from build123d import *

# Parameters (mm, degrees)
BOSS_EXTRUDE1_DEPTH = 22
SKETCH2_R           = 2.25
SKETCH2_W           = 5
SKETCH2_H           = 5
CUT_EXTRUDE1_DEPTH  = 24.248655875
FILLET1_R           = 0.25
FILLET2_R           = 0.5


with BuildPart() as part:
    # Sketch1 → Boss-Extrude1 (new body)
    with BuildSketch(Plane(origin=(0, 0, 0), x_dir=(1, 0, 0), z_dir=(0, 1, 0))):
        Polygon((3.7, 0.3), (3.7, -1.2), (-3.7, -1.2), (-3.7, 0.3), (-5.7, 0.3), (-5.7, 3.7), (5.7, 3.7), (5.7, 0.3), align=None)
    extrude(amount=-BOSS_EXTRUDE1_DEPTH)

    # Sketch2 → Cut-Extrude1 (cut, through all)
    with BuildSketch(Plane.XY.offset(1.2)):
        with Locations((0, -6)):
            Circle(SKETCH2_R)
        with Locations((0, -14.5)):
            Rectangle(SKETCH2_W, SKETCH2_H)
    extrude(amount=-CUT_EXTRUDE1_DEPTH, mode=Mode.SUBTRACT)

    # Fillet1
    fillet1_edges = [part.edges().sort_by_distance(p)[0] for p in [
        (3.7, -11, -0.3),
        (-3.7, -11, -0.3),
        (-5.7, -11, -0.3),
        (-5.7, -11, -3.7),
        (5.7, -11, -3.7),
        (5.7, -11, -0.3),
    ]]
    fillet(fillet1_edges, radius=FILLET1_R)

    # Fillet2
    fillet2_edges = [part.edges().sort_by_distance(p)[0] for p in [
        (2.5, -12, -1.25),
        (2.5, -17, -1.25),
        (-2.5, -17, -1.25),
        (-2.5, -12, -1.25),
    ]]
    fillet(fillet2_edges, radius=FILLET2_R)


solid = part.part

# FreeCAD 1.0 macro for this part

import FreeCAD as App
import Part
import Sketcher
from FreeCAD import Vector


def edges_at(feature, points):
    """Names of the edges that pass closest to the given points."""
    edges = feature.Shape.Edges
    near = lambda p: min(range(len(edges)), key=lambda i: edges[i].distToShape(Part.Vertex(*p))[0])
    return sorted({f"Edge{near(p) + 1}" for p in points})

doc = App.newDocument("Part")
body = doc.addObject("PartDesign::Body", "Body")

sketch1 = body.newObject("Sketcher::SketchObject", "Sketch")
sketch1.AttachmentSupport = (doc.getObject("XZ_Plane"), [""])
sketch1.MapMode = "FlatFace"
sketch1.addGeometry(Part.LineSegment(Vector(3.7, 1.2, 0), Vector(3.7, -0.3, 0)), False)
sketch1.addGeometry(Part.LineSegment(Vector(3.7, -0.3, 0), Vector(5.7, -0.3, 0)), False)
sketch1.addGeometry(Part.LineSegment(Vector(5.7, -0.3, 0), Vector(5.7, -3.7, 0)), False)
sketch1.addGeometry(Part.LineSegment(Vector(5.7, -3.7, 0), Vector(-5.7, -3.7, 0)), False)
sketch1.addGeometry(Part.LineSegment(Vector(-5.7, -3.7, 0), Vector(-5.7, -0.3, 0)), False)
sketch1.addGeometry(Part.LineSegment(Vector(-5.7, -0.3, 0), Vector(-3.7, -0.3, 0)), False)
sketch1.addGeometry(Part.LineSegment(Vector(-3.7, -0.3, 0), Vector(-3.7, 1.2, 0)), False)
sketch1.addGeometry(Part.LineSegment(Vector(-3.7, 1.2, 0), Vector(3.7, 1.2, 0)), False)
sketch1.addConstraint(Sketcher.Constraint("Coincident", 0, 2, 1, 1))
sketch1.addConstraint(Sketcher.Constraint("Coincident", 1, 2, 2, 1))
sketch1.addConstraint(Sketcher.Constraint("Coincident", 2, 2, 3, 1))
sketch1.addConstraint(Sketcher.Constraint("Coincident", 3, 2, 4, 1))
sketch1.addConstraint(Sketcher.Constraint("Coincident", 4, 2, 5, 1))
sketch1.addConstraint(Sketcher.Constraint("Coincident", 5, 2, 6, 1))
sketch1.addConstraint(Sketcher.Constraint("Coincident", 6, 2, 7, 1))
sketch1.addConstraint(Sketcher.Constraint("Coincident", 7, 2, 0, 1))
sketch1.addConstraint(Sketcher.Constraint("Vertical", 0))
sketch1.addConstraint(Sketcher.Constraint("Horizontal", 1))
sketch1.addConstraint(Sketcher.Constraint("Vertical", 2))
sketch1.addConstraint(Sketcher.Constraint("Horizontal", 3))
sketch1.addConstraint(Sketcher.Constraint("Vertical", 4))
sketch1.addConstraint(Sketcher.Constraint("Horizontal", 5))
sketch1.addConstraint(Sketcher.Constraint("Vertical", 6))
sketch1.addConstraint(Sketcher.Constraint("Horizontal", 7))
sketch1.addConstraint(Sketcher.Constraint("Symmetric", 1, 2, 4, 2, -2))
sketch1.addConstraint(Sketcher.Constraint("Equal", 1, 5))
sketch1.addConstraint(Sketcher.Constraint("DistanceX", 1, 1, 1, 2, 2.0))
sketch1.addConstraint(Sketcher.Constraint("DistanceX", 3, 2, 3, 1, 11.4))
sketch1.addConstraint(Sketcher.Constraint("DistanceY", 0, 2, 0, 1, 1.5))
sketch1.addConstraint(Sketcher.Constraint("DistanceY", 2, 2, 2, 1, 3.4))
sketch1.addConstraint(Sketcher.Constraint("DistanceY", 0, 2, -1, 1, 0.3))
pad1 = body.newObject("PartDesign::Pad", "Pad")
pad1.Profile = sketch1
pad1.Length = 22

sketch2 = body.newObject("Sketcher::SketchObject", "Sketch001")
sketch2.AttachmentSupport = (doc.getObject("XY_Plane"), [""])
sketch2.MapMode = "FlatFace"
sketch2.AttachmentOffset = App.Placement(Vector(0, 0, 1.2), App.Rotation())
sketch2.addGeometry(Part.Circle(Vector(0, -6, 0), Vector(0, 0, 1), 2.2), False)
sketch2.addGeometry(Part.LineSegment(Vector(-2.5, -12, 0), Vector(-2.5, -17, 0)), False)
sketch2.addGeometry(Part.LineSegment(Vector(-2.5, -17, 0), Vector(2.5, -17, 0)), False)
sketch2.addGeometry(Part.LineSegment(Vector(2.5, -17, 0), Vector(2.5, -12, 0)), False)
sketch2.addGeometry(Part.LineSegment(Vector(2.5, -12, 0), Vector(-2.5, -12, 0)), False)
sketch2.addConstraint(Sketcher.Constraint("Coincident", 1, 2, 2, 1))
sketch2.addConstraint(Sketcher.Constraint("Coincident", 2, 2, 3, 1))
sketch2.addConstraint(Sketcher.Constraint("Coincident", 3, 2, 4, 1))
sketch2.addConstraint(Sketcher.Constraint("Coincident", 4, 2, 1, 1))
sketch2.addConstraint(Sketcher.Constraint("Vertical", 1))
sketch2.addConstraint(Sketcher.Constraint("Horizontal", 2))
sketch2.addConstraint(Sketcher.Constraint("Vertical", 3))
sketch2.addConstraint(Sketcher.Constraint("Horizontal", 4))
sketch2.addConstraint(Sketcher.Constraint("PointOnObject", 0, 3, -2))
sketch2.addConstraint(Sketcher.Constraint("Equal", 4, 1))
sketch2.addConstraint(Sketcher.Constraint("Diameter", 0, 4.5))
sketch2.addConstraint(Sketcher.Constraint("DistanceX", 2, 1, 2, 2, 5.0))
sketch2.addConstraint(Sketcher.Constraint("DistanceY", 0, 3, -1, 1, 6.0))
sketch2.addConstraint(Sketcher.Constraint("DistanceY", 1, 2, -1, 1, 17.0))
sketch2.addConstraint(Sketcher.Constraint("DistanceX", 1, 2, -1, 1, 2.5))
pocket1 = body.newObject("PartDesign::Pocket", "Pocket")
pocket1.Profile = sketch2
pocket1.Type = "ThroughAll"
doc.recompute()

fillet = body.newObject("PartDesign::Fillet", "Fillet")
fillet.Base = (pocket1, edges_at(pocket1, [
    (3.7, -11, -0.3),
    (-3.7, -11, -0.3),
    (-5.7, -11, -0.3),
    (-5.7, -11, -3.7),
    (5.7, -11, -3.7),
    (5.7, -11, -0.3),
]))
fillet.Radius = 0.25
doc.recompute()

fillet2 = body.newObject("PartDesign::Fillet", "Fillet001")
fillet2.Base = (fillet, edges_at(fillet, [
    (2.5, -12, -1.25),
    (2.5, -17, -1.25),
    (-2.5, -17, -1.25),
    (-2.5, -12, -1.25),
]))
fillet2.Radius = 0.5

doc.recompute()
